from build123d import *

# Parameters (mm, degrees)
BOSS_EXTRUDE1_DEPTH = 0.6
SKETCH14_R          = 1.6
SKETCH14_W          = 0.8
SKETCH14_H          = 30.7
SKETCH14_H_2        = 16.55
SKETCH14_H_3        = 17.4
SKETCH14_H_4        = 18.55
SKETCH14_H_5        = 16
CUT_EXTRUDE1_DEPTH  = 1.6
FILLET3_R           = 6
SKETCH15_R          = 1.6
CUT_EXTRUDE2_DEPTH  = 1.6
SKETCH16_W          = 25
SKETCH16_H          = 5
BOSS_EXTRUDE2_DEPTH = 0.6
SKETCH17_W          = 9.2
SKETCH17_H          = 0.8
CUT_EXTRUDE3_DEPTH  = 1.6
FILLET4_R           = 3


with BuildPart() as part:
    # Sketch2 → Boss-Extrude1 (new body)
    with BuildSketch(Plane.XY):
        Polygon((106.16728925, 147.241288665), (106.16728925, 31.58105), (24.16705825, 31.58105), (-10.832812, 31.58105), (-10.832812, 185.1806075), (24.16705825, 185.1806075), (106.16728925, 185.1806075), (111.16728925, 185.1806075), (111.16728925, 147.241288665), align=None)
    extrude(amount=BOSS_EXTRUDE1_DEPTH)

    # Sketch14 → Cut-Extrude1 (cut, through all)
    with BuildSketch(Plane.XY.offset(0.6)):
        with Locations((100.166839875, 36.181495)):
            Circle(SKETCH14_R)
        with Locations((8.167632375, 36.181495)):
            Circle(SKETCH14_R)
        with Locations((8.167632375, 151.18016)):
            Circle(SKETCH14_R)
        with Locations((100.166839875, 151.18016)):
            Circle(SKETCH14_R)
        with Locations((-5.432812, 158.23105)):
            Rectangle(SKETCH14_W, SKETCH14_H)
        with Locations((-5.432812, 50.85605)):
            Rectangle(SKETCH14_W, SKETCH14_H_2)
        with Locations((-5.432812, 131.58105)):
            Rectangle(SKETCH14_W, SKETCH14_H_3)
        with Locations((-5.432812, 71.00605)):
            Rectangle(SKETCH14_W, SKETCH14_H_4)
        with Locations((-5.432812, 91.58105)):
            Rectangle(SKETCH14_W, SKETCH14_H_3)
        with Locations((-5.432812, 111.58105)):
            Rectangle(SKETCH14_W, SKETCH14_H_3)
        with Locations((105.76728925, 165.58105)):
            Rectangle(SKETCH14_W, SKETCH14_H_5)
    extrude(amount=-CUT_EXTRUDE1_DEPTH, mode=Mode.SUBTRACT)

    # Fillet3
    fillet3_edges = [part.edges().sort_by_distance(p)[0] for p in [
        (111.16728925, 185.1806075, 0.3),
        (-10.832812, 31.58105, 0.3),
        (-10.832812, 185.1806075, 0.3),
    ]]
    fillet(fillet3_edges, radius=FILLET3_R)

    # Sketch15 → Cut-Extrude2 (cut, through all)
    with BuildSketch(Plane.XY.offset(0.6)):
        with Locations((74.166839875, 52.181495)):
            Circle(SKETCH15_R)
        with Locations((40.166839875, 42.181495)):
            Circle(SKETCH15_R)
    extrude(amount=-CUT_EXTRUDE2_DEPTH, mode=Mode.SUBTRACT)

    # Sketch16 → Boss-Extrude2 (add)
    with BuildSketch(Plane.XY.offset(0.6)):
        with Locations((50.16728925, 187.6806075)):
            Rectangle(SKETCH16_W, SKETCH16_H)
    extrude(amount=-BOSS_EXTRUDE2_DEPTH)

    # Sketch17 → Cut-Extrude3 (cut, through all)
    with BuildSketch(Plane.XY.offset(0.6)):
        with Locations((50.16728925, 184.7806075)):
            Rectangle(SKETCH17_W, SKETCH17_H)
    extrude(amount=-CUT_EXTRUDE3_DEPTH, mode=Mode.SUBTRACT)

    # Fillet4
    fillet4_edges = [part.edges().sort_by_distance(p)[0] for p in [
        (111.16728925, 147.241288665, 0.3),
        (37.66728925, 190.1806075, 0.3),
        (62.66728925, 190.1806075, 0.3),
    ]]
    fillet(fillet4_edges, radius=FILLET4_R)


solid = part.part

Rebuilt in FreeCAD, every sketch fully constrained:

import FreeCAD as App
import Part
import Sketcher
from FreeCAD import Vector


def edges_at(feature, points):
    """Names of the edges that pass closest to the given points."""
    edges = feature.Shape.Edges
    near = lambda p: min(range(len(edges)), key=lambda i: edges[i].distToShape(Part.Vertex(*p))[0])
    return sorted({f"Edge{near(p) + 1}" for p in points})

doc = App.newDocument("Part")
body = doc.addObject("PartDesign::Body", "Body")

# Sketch on XY plane
sketch1 = doc.addObject("Sketcher::SketchObject", "Sketch")
body.addObject(sketch1)
sketch1.AttachmentSupport = (doc.XY_Plane, [""])
sketch1.MapMode = "FlatFace"
sketch1.addGeometry(Part.LineSegment(Vector(106, 32, 0), Vector(106, 147, 0)), False)
sketch1.addGeometry(Part.LineSegment(Vector(106, 147, 0), Vector(111, 147, 0)), False)
sketch1.addGeometry(Part.LineSegment(Vector(111, 147, 0), Vector(111, 185, 0)), False)
sketch1.addGeometry(Part.LineSegment(Vector(111, 185, 0), Vector(-11, 185, 0)), False)
sketch1.addGeometry(Part.LineSegment(Vector(-11, 185, 0), Vector(-11, 32, 0)), False)
sketch1.addGeometry(Part.LineSegment(Vector(-11, 32, 0), Vector(106, 32, 0)), False)
sketch1.addConstraint(Sketcher.Constraint("Coincident", 0, 2, 1, 1))
sketch1.addConstraint(Sketcher.Constraint("Coincident", 1, 2, 2, 1))
sketch1.addConstraint(Sketcher.Constraint("Coincident", 2, 2, 3, 1))
sketch1.addConstraint(Sketcher.Constraint("Coincident", 3, 2, 4, 1))
sketch1.addConstraint(Sketcher.Constraint("Coincident", 4, 2, 5, 1))
sketch1.addConstraint(Sketcher.Constraint("Coincident", 5, 2, 0, 1))
sketch1.addConstraint(Sketcher.Constraint("Vertical", 0))
sketch1.addConstraint(Sketcher.Constraint("Horizontal", 1))
sketch1.addConstraint(Sketcher.Constraint("Vertical", 2))
sketch1.addConstraint(Sketcher.Constraint("Horizontal", 3))
sketch1.addConstraint(Sketcher.Constraint("Vertical", 4))
sketch1.addConstraint(Sketcher.Constraint("Horizontal", 5))
sketch1.addConstraint(Sketcher.Constraint("DistanceX", 1, 1, 1, 2, 5.0))
sketch1.addConstraint(Sketcher.Constraint("DistanceX", 3, 2, 3, 1, 122.000101))
sketch1.addConstraint(Sketcher.Constraint("DistanceY", 0, 1, 0, 2, 115.660239))
sketch1.addConstraint(Sketcher.Constraint("DistanceY", 2, 1, 2, 2, 37.939319))
sketch1.addConstraint(Sketcher.Constraint("DistanceX", -1, 1, 0, 2, 106.167289))
sketch1.addConstraint(Sketcher.Constraint("DistanceY", -1, 1, 0, 2, 147.241289))
pad1 = doc.addObject("PartDesign::Pad", "Pad")
body.addObject(pad1)
pad1.Profile = sketch1
pad1.Length = 0.6

# Sketch on XY plane
sketch2 = doc.addObject("Sketcher::SketchObject", "Sketch001")
body.addObject(sketch2)
sketch2.AttachmentSupport = (doc.XY_Plane, [""])
sketch2.MapMode = "FlatFace"
sketch2.AttachmentOffset = App.Placement(Vector(0, 0, 0.6), App.Rotation())
sketch2.addGeometry(Part.Circle(Vector(100.2, 36.2, 0), Vector(0, 0, 1), 1.6), False)
sketch2.addGeometry(Part.Circle(Vector(8.2, 36.2, 0), Vector(0, 0, 1), 1.6), False)
sketch2.addGeometry(Part.Circle(Vector(8.2, 151.2, 0), Vector(0, 0, 1), 1.6), False)
sketch2.addGeometry(Part.Circle(Vector(100.2, 151.2, 0), Vector(0, 0, 1), 1.6), False)
sketch2.addGeometry(Part.LineSegment(Vector(-5.8, 173.6, 0), Vector(-5.8, 142.9, 0)), False)
sketch2.addGeometry(Part.LineSegment(Vector(-5.8, 142.9, 0), Vector(-5, 142.9, 0)), False)
sketch2.addGeometry(Part.LineSegment(Vector(-5, 142.9, 0), Vector(-5, 173.6, 0)), False)
sketch2.addGeometry(Part.LineSegment(Vector(-5, 173.6, 0), Vector(-5.8, 173.6, 0)), False)
sketch2.addGeometry(Part.LineSegment(Vector(-5.8, 59.1, 0), Vector(-5.8, 42.6, 0)), False)
sketch2.addGeometry(Part.LineSegment(Vector(-5.8, 42.6, 0), Vector(-5, 42.6, 0)), False)
sketch2.addGeometry(Part.LineSegment(Vector(-5, 42.6, 0), Vector(-5, 59.1, 0)), False)
sketch2.addGeometry(Part.LineSegment(Vector(-5, 59.1, 0), Vector(-5.8, 59.1, 0)), False)
sketch2.addGeometry(Part.LineSegment(Vector(-5.8, 140.3, 0), Vector(-5.8, 122.9, 0)), False)
sketch2.addGeometry(Part.LineSegment(Vector(-5.8, 122.9, 0), Vector(-5, 122.9, 0)), False)
sketch2.addGeometry(Part.LineSegment(Vector(-5, 122.9, 0), Vector(-5, 140.3, 0)), False)
sketch2.addGeometry(Part.LineSegment(Vector(-5, 140.3, 0), Vector(-5.8, 140.3, 0)), False)
sketch2.addGeometry(Part.LineSegment(Vector(-5.8, 80.3, 0), Vector(-5.8, 61.7, 0)), False)
sketch2.addGeometry(Part.LineSegment(Vector(-5.8, 61.7, 0), Vector(-5, 61.7, 0)), False)
sketch2.addGeometry(Part.LineSegment(Vector(-5, 61.7, 0), Vector(-5, 80.3, 0)), False)
sketch2.addGeometry(Part.LineSegment(Vector(-5, 80.3, 0), Vector(-5.8, 80.3, 0)), False)
sketch2.addGeometry(Part.LineSegment(Vector(-5.8, 100.3, 0), Vector(-5.8, 82.9, 0)), False)
sketch2.addGeometry(Part.LineSegment(Vector(-5.8, 82.9, 0), Vector(-5, 82.9, 0)), False)
sketch2.addGeometry(Part.LineSegment(Vector(-5, 82.9, 0), Vector(-5, 100.3, 0)), False)
sketch2.addGeometry(Part.LineSegment(Vector(-5, 100.3, 0), Vector(-5.8, 100.3, 0)), False)
sketch2.addGeometry(Part.LineSegment(Vector(-5.8, 120.3, 0), Vector(-5.8, 102.9, 0)), False)
sketch2.addGeometry(Part.LineSegment(Vector(-5.8, 102.9, 0), Vector(-5, 102.9, 0)), False)
sketch2.addGeometry(Part.LineSegment(Vector(-5, 102.9, 0), Vector(-5, 120.3, 0)), False)
sketch2.addGeometry(Part.LineSegment(Vector(-5, 120.3, 0), Vector(-5.8, 120.3, 0)), False)
sketch2.addGeometry(Part.LineSegment(Vector(105.4, 173.6, 0), Vector(105.4, 157.6, 0)), False)
sketch2.addGeometry(Part.LineSegment(Vector(105.4, 157.6, 0), Vector(106.2, 157.6, 0)), False)
sketch2.addGeometry(Part.LineSegment(Vector(106.2, 157.6, 0), Vector(106.2, 173.6, 0)), False)
sketch2.addGeometry(Part.LineSegment(Vector(106.2, 173.6, 0), Vector(105.4, 173.6, 0)), False)
sketch2.addConstraint(Sketcher.Constraint("Coincident", 4, 2, 5, 1))
sketch2.addConstraint(Sketcher.Constraint("Coincident", 5, 2, 6, 1))
sketch2.addConstraint(Sketcher.Constraint("Coincident", 6, 2, 7, 1))
sketch2.addConstraint(Sketcher.Constraint("Coincident", 7, 2, 4, 1))
sketch2.addConstraint(Sketcher.Constraint("Coincident", 8, 2, 9, 1))
sketch2.addConstraint(Sketcher.Constraint("Coincident", 9, 2, 10, 1))
sketch2.addConstraint(Sketcher.Constraint("Coincident", 10, 2, 11, 1))
sketch2.addConstraint(Sketcher.Constraint("Coincident", 11, 2, 8, 1))
sketch2.addConstraint(Sketcher.Constraint("Coincident", 12, 2, 13, 1))
sketch2.addConstraint(Sketcher.Constraint("Coincident", 13, 2, 14, 1))
sketch2.addConstraint(Sketcher.Constraint("Coincident", 14, 2, 15, 1))
sketch2.addConstraint(Sketcher.Constraint("Coincident", 15, 2, 12, 1))
sketch2.addConstraint(Sketcher.Constraint("Coincident", 16, 2, 17, 1))
sketch2.addConstraint(Sketcher.Constraint("Coincident", 17, 2, 18, 1))
sketch2.addConstraint(Sketcher.Constraint("Coincident", 18, 2, 19, 1))
sketch2.addConstraint(Sketcher.Constraint("Coincident", 19, 2, 16, 1))
sketch2.addConstraint(Sketcher.Constraint("Coincident", 20, 2, 21, 1))
sketch2.addConstraint(Sketcher.Constraint("Coincident", 21, 2, 22, 1))
sketch2.addConstraint(Sketcher.Constraint("Coincident", 22, 2, 23, 1))
sketch2.addConstraint(Sketcher.Constraint("Coincident", 23, 2, 20, 1))
sketch2.addConstraint(Sketcher.Constraint("Coincident", 24, 2, 25, 1))
sketch2.addConstraint(Sketcher.Constraint("Coincident", 25, 2, 26, 1))
sketch2.addConstraint(Sketcher.Constraint("Coincident", 26, 2, 27, 1))
sketch2.addConstraint(Sketcher.Constraint("Coincident", 27, 2, 24, 1))
sketch2.addConstraint(Sketcher.Constraint("Coincident", 28, 2, 29, 1))
sketch2.addConstraint(Sketcher.Constraint("Coincident", 29, 2, 30, 1))
sketch2.addConstraint(Sketcher.Constraint("Coincident", 30, 2, 31, 1))
sketch2.addConstraint(Sketcher.Constraint("Coincident", 31, 2, 28, 1))
sketch2.addConstraint(Sketcher.Constraint("Vertical", 4))
sketch2.addConstraint(Sketcher.Constraint("Horizontal", 5))
sketch2.addConstraint(Sketcher.Constraint("Vertical", 6))
sketch2.addConstraint(Sketcher.Constraint("Horizontal", 7))
sketch2.addConstraint(Sketcher.Constraint("Vertical", 8))
sketch2.addConstraint(Sketcher.Constraint("Horizontal", 9))
sketch2.addConstraint(Sketcher.Constraint("Vertical", 10))
sketch2.addConstraint(Sketcher.Constraint("Horizontal", 11))
sketch2.addConstraint(Sketcher.Constraint("Vertical", 12))
sketch2.addConstraint(Sketcher.Constraint("Horizontal", 13))
sketch2.addConstraint(Sketcher.Constraint("Vertical", 14))
sketch2.addConstraint(Sketcher.Constraint("Horizontal", 15))
sketch2.addConstraint(Sketcher.Constraint("Vertical", 16))
sketch2.addConstraint(Sketcher.Constraint("Horizontal", 17))
sketch2.addConstraint(Sketcher.Constraint("Vertical", 18))
sketch2.addConstraint(Sketcher.Constraint("Horizontal", 19))
sketch2.addConstraint(Sketcher.Constraint("Vertical", 20))
sketch2.addConstraint(Sketcher.Constraint("Horizontal", 21))
sketch2.addConstraint(Sketcher.Constraint("Vertical", 22))
sketch2.addConstraint(Sketcher.Constraint("Horizontal", 23))
sketch2.addConstraint(Sketcher.Constraint("Vertical", 24))
sketch2.addConstraint(Sketcher.Constraint("Horizontal", 25))
sketch2.addConstraint(Sketcher.Constraint("Vertical", 26))
sketch2.addConstraint(Sketcher.Constraint("Horizontal", 27))
sketch2.addConstraint(Sketcher.Constraint("Vertical", 28))
sketch2.addConstraint(Sketcher.Constraint("Horizontal", 29))
sketch2.addConstraint(Sketcher.Constraint("Vertical", 30))
sketch2.addConstraint(Sketcher.Constraint("Horizontal", 31))
sketch2.addConstraint(Sketcher.Constraint("Equal", 0, 1))
sketch2.addConstraint(Sketcher.Constraint("Equal", 1, 2))
sketch2.addConstraint(Sketcher.Constraint("Equal", 2, 3))
sketch2.addConstraint(Sketcher.Constraint("Horizontal", 0, 3, 1, 3))
sketch2.addConstraint(Sketcher.Constraint("Horizontal", 2, 3, 3, 3))
sketch2.addConstraint(Sketcher.Constraint("Horizontal", 7, 2, 30, 2))
sketch2.addConstraint(Sketcher.Constraint("Vertical", 1, 3, 2, 3))
sketch2.addConstraint(Sketcher.Constraint("Vertical", 0, 3, 3, 3))
sketch2.addConstraint(Sketcher.Constraint("Vertical", 7, 2, 8, 2))
sketch2.addConstraint(Sketcher.Constraint("Vertical", 6, 2, 9, 2))
sketch2.addConstraint(Sketcher.Constraint("Vertical", 11, 2, 12, 2))
sketch2.addConstraint(Sketcher.Constraint("Vertical", 10, 2, 13, 2))
sketch2.addConstraint(Sketcher.Constraint("Vertical", 15, 2, 16, 2))
sketch2.addConstraint(Sketcher.Constraint("Vertical", 14, 2, 17, 2))
sketch2.addConstraint(Sketcher.Constraint("Vertical", 19, 2, 20, 2))
sketch2.addConstraint(Sketcher.Constraint("Vertical", 18, 2, 21, 2))
sketch2.addConstraint(Sketcher.Constraint("Vertical", 23, 2, 24, 2))
sketch2.addConstraint(Sketcher.Constraint("Vertical", 22, 2, 25, 2))
sketch2.addConstraint(Sketcher.Constraint("Equal", 27, 29))
sketch2.addConstraint(Sketcher.Constraint("Equal", 14, 20))
sketch2.addConstraint(Sketcher.Constraint("Equal", 22, 24))
sketch2.addConstraint(Sketcher.Constraint("Diameter", 0, 3.2))
sketch2.addConstraint(Sketcher.Constraint("DistanceY", 28, 2, 28, 1, 16.0))
sketch2.addConstraint(Sketcher.Constraint("DistanceX", 5, 1, 5, 2, 0.8))
sketch2.addConstraint(Sketcher.Constraint("DistanceY", 4, 2, 4, 1, 30.7))
sketch2.addConstraint(Sketcher.Constraint("DistanceY", 12, 2, 12, 1, 17.4))
sketch2.addConstraint(Sketcher.Constraint("DistanceY", 12, 2, 4, 2, 20.0))
sketch2.addConstraint(Sketcher.Constraint("DistanceY", 18, 2, 22, 2, 20.0))
sketch2.addConstraint(Sketcher.Constraint("DistanceY", 24, 2, 12, 2, 20.0))
sketch2.addConstraint(Sketcher.Constraint("DistanceY", 20, 2, 24, 2, 20.0))
sketch2.addConstraint(Sketcher.Constraint("DistanceY", 8, 2, 8, 1, 16.55))
sketch2.addConstraint(Sketcher.Constraint("DistanceY", 16, 2, 16, 1, 18.55))
sketch2.addConstraint(Sketcher.Constraint("DistanceY", 8, 2, 4, 2, 100.3))
sketch2.addConstraint(Sketcher.Constraint("DistanceX", 5, 2, 28, 2, 110.400101))
sketch2.addConstraint(Sketcher.Constraint("DistanceX", -1, 1, 0, 3, 100.16684))
sketch2.addConstraint(Sketcher.Constraint("DistanceY", -1, 1, 2, 3, 151.18016))
sketch2.addConstraint(Sketcher.Constraint("DistanceX", 4, 2, -1, 1, 5.832812))
sketch2.addConstraint(Sketcher.Constraint("DistanceY", -1, 1, 4, 2, 142.88105))
sketch2.addConstraint(Sketcher.Constraint("DistanceY", -1, 1, 0, 3, 36.181495))
sketch2.addConstraint(Sketcher.Constraint("DistanceX", -1, 1, 1, 3, 8.167632))
pocket1 = doc.addObject("PartDesign::Pocket", "Pocket")
body.addObject(pocket1)
pocket1.Profile = sketch2
pocket1.Type = "ThroughAll"
doc.recompute()

fillet = doc.addObject("PartDesign::Fillet", "Fillet")
body.addObject(fillet)
fillet.Base = (pocket1, edges_at(pocket1, [(111.167, 185.181, 0.3), (-10.833, 31.581, 0.3), (-10.833, 185.181, 0.3)]))
fillet.Radius = 6

# Sketch on XY plane
sketch3 = doc.addObject("Sketcher::SketchObject", "Sketch002")
body.addObject(sketch3)
sketch3.AttachmentSupport = (doc.XY_Plane, [""])
sketch3.MapMode = "FlatFace"
sketch3.AttachmentOffset = App.Placement(Vector(0, 0, 0.6), App.Rotation())
sketch3.addGeometry(Part.Circle(Vector(74.2, 52.2, 0), Vector(0, 0, 1), 1.6), False)
sketch3.addGeometry(Part.Circle(Vector(40.2, 42.2, 0), Vector(0, 0, 1), 1.6), False)
sketch3.addConstraint(Sketcher.Constraint("Equal", 0, 1))
sketch3.addConstraint(Sketcher.Constraint("Diameter", 0, 3.2))
sketch3.addConstraint(Sketcher.Constraint("DistanceX", 1, 3, 0, 3, 34.0))
sketch3.addConstraint(Sketcher.Constraint("DistanceY", 1, 3, 0, 3, 10.0))
sketch3.addConstraint(Sketcher.Constraint("DistanceX", -1, 1, 0, 3, 74.16684))
sketch3.addConstraint(Sketcher.Constraint("DistanceY", -1, 1, 0, 3, 52.181495))
pocket2 = doc.addObject("PartDesign::Pocket", "Pocket001")
body.addObject(pocket2)
pocket2.Profile = sketch3
pocket2.Type = "ThroughAll"

# Sketch on XY plane
sketch4 = doc.addObject("Sketcher::SketchObject", "Sketch003")
body.addObject(sketch4)
sketch4.AttachmentSupport = (doc.XY_Plane, [""])
sketch4.MapMode = "FlatFace"
sketch4.AttachmentOffset = App.Placement(Vector(0, 0, 0.6), App.Rotation())
sketch4.addGeometry(Part.LineSegment(Vector(38, 190, 0), Vector(38, 185, 0)), False)
sketch4.addGeometry(Part.LineSegment(Vector(38, 185, 0), Vector(63, 185, 0)), False)
sketch4.addGeometry(Part.LineSegment(Vector(63, 185, 0), Vector(63, 190, 0)), False)
sketch4.addGeometry(Part.LineSegment(Vector(63, 190, 0), Vector(38, 190, 0)), False)
sketch4.addConstraint(Sketcher.Constraint("Coincident", 0, 2, 1, 1))
sketch4.addConstraint(Sketcher.Constraint("Coincident", 1, 2, 2, 1))
sketch4.addConstraint(Sketcher.Constraint("Coincident", 2, 2, 3, 1))
sketch4.addConstraint(Sketcher.Constraint("Coincident", 3, 2, 0, 1))
sketch4.addConstraint(Sketcher.Constraint("Vertical", 0))
sketch4.addConstraint(Sketcher.Constraint("Horizontal", 1))
sketch4.addConstraint(Sketcher.Constraint("Vertical", 2))
sketch4.addConstraint(Sketcher.Constraint("Horizontal", 3))
sketch4.addConstraint(Sketcher.Constraint("DistanceX", 1, 1, 1, 2, 25.0))
sketch4.addConstraint(Sketcher.Constraint("DistanceY", 0, 2, 0, 1, 5.0))
sketch4.addConstraint(Sketcher.Constraint("DistanceX", -1, 1, 0, 2, 37.667289))
sketch4.addConstraint(Sketcher.Constraint("DistanceY", -1, 1, 0, 2, 185.180608))
pad2 = doc.addObject("PartDesign::Pad", "Pad001")
body.addObject(pad2)
pad2.Profile = sketch4
pad2.Length = 0.6
pad2.Reversed = True

# Sketch on XY plane
sketch5 = doc.addObject("Sketcher::SketchObject", "Sketch004")
body.addObject(sketch5)
sketch5.AttachmentSupport = (doc.XY_Plane, [""])
sketch5.MapMode = "FlatFace"
sketch5.AttachmentOffset = App.Placement(Vector(0, 0, 0.6), App.Rotation())
sketch5.addGeometry(Part.LineSegment(Vector(45.6, 185.2, 0), Vector(45.6, 184.4, 0)), False)
sketch5.addGeometry(Part.LineSegment(Vector(45.6, 184.4, 0), Vector(54.8, 184.4, 0)), False)
sketch5.addGeometry(Part.LineSegment(Vector(54.8, 184.4, 0), Vector(54.8, 185.2, 0)), False)
sketch5.addGeometry(Part.LineSegment(Vector(54.8, 185.2, 0), Vector(45.6, 185.2, 0)), False)
sketch5.addConstraint(Sketcher.Constraint("Coincident", 0, 2, 1, 1))
sketch5.addConstraint(Sketcher.Constraint("Coincident", 1, 2, 2, 1))
sketch5.addConstraint(Sketcher.Constraint("Coincident", 2, 2, 3, 1))
sketch5.addConstraint(Sketcher.Constraint("Coincident", 3, 2, 0, 1))
sketch5.addConstraint(Sketcher.Constraint("Vertical", 0))
sketch5.addConstraint(Sketcher.Constraint("Horizontal", 1))
sketch5.addConstraint(Sketcher.Constraint("Vertical", 2))
sketch5.addConstraint(Sketcher.Constraint("Horizontal", 3))
sketch5.addConstraint(Sketcher.Constraint("DistanceX", 1, 1, 1, 2, 9.2))
sketch5.addConstraint(Sketcher.Constraint("DistanceY", 0, 2, 0, 1, 0.8))
sketch5.addConstraint(Sketcher.Constraint("DistanceX", -1, 1, 0, 2, 45.567289))
sketch5.addConstraint(Sketcher.Constraint("DistanceY", -1, 1, 0, 2, 184.380607))
pocket3 = doc.addObject("PartDesign::Pocket", "Pocket002")
body.addObject(pocket3)
pocket3.Profile = sketch5
pocket3.Type = "ThroughAll"
doc.recompute()

fillet2 = doc.addObject("PartDesign::Fillet", "Fillet001")
body.addObject(fillet2)
fillet2.Base = (pocket3, edges_at(pocket3, [(111.167, 147.241, 0.3), (37.667, 190.181, 0.3), (62.667, 190.181, 0.3)]))
fillet2.Radius = 3

doc.recompute()
